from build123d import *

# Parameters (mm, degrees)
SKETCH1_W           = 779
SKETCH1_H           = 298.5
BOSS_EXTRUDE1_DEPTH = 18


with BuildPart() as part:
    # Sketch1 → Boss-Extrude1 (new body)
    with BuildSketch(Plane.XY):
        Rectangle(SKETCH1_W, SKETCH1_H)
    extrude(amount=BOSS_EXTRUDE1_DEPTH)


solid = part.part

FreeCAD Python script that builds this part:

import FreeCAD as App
import Part
import Sketcher
Q = App.Units.Quantity


def add_polygon(sketch, points):
    """Adds a closed chain of lines whose ends are joined by coincident constraints."""
    first, n = sketch.GeometryCount, len(points)
    for a, b in zip(points, points[1:] + points[:1]):
        sketch.addGeometry(Part.LineSegment(App.Vector(*a, 0), App.Vector(*b, 0)), False)
    for i in range(n):
        sketch.addConstraint(Sketcher.Constraint("Coincident", first + i, 2, first + (i + 1) % n, 1))

doc = App.newDocument("Part")
params = doc.addObject("Spreadsheet::Sheet", "Params")
for row, (alias, value) in enumerate([
    ("sketch1_width", "779 mm"),
    ("sketch1_height", "298.5 mm"),
    ("pad1_length", "18 mm"),
], start=1):
    params.set(f"A{row}", alias)
    params.set(f"B{row}", "=" + value)
    params.setAlias(f"B{row}", alias)

body = doc.addObject("PartDesign::Body", "Body")

sketch1 = doc.addObject("Sketcher::SketchObject", "Sketch")
body.addObject(sketch1)
sketch1.AttachmentSupport = (doc.XY_Plane, [""])
sketch1.MapMode = "FlatFace"
add_polygon(sketch1, [(-390, 149), (-390, -149), (390, -149), (390, 149)])
sketch1.addConstraint([
    Sketcher.Constraint("Vertical", 0),
    Sketcher.Constraint("Horizontal", 1),
    Sketcher.Constraint("Vertical", 2),
    Sketcher.Constraint("Horizontal", 3),
    Sketcher.Constraint("Symmetric", 0, 2, 2, 2, -1, 1),
    Sketcher.Constraint("DistanceX", 1, 1, 1, 2, Q("779 mm")),
    Sketcher.Constraint("DistanceY", 0, 2, 0, 1, Q("298.5 mm")),
])
sketch1.setExpression("Constraints[9]", "Params.sketch1_width")
sketch1.setExpression("Constraints[10]", "Params.sketch1_height")
pad1 = doc.addObject("PartDesign::Pad", "Pad")
body.addObject(pad1)
pad1.Profile = sketch1
pad1.setExpression("Length", "Params.pad1_length")

doc.recompute()
